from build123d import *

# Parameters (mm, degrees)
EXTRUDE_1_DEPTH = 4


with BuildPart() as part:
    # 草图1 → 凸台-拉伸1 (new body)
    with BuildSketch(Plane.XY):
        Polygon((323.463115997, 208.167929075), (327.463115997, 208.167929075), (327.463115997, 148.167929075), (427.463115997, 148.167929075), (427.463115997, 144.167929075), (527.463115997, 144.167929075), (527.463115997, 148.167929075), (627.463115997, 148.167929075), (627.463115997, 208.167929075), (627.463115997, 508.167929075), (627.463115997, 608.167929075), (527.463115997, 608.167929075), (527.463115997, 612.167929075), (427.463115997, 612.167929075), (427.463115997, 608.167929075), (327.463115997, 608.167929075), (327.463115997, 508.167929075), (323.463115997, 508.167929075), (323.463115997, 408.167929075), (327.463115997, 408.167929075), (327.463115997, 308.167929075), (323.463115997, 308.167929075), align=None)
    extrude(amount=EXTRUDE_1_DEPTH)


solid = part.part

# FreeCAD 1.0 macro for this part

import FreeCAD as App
import Part
import Sketcher
from FreeCAD import Vector
Q = App.Units.Quantity


def add_polygon(sketch, points):
    """Adds a closed chain of lines whose ends are joined by coincident constraints."""
    first, n = sketch.GeometryCount, len(points)
    for a, b in zip(points, points[1:] + points[:1]):
        sketch.addGeometry(Part.LineSegment(App.Vector(*a, 0), App.Vector(*b, 0)), False)
    for i in range(n):
        sketch.addConstraint(Sketcher.Constraint("Coincident", first + i, 2, first + (i + 1) % n, 1))

doc = App.newDocument("Part")
body = doc.addObject("PartDesign::Body", "Body")

# Sketch on XY plane
sketch1 = body.newObject("Sketcher::SketchObject", "Sketch")
sketch1.AttachmentSupport = (doc.getObject("XY_Plane"), [""])
sketch1.MapMode = "FlatFace"
add_polygon(sketch1, [(323.463116, 208.167929), (327.463116, 208.167929), (327.463116, 148.167929), (427.463116, 148.167929), (427.463116, 144.167929), (527.463116, 144.167929), (527.463116, 148.167929), (627.463116, 148.167929), (627.463116, 608.167929), (527.463116, 608.167929), (527.463116, 612.167929), (427.463116, 612.167929), (427.463116, 608.167929), (327.463116, 608.167929), (327.463116, 508.167929), (323.463116, 508.167929), (323.463116, 408.167929), (327.463116, 408.167929), (327.463116, 308.167929), (323.463116, 308.167929)])  # lines 0-19
sketch1.addConstraint([
    Sketcher.Constraint("Horizontal", 0),
    Sketcher.Constraint("Vertical", 1),
    Sketcher.Constraint("Horizontal", 2),
    Sketcher.Constraint("Vertical", 3),
    Sketcher.Constraint("Horizontal", 4),
    Sketcher.Constraint("Vertical", 5),
    Sketcher.Constraint("Horizontal", 6),
    Sketcher.Constraint("Vertical", 7),
    Sketcher.Constraint("Horizontal", 8),
    Sketcher.Constraint("Vertical", 9),
    Sketcher.Constraint("Horizontal", 10),
    Sketcher.Constraint("Vertical", 11),
    Sketcher.Constraint("Horizontal", 12),
    Sketcher.Constraint("Vertical", 13),
    Sketcher.Constraint("Horizontal", 14),
    Sketcher.Constraint("Vertical", 15),
    Sketcher.Constraint("Horizontal", 16),
    Sketcher.Constraint("Vertical", 17),
    Sketcher.Constraint("Horizontal", 18),
    Sketcher.Constraint("Vertical", 19),
    Sketcher.Constraint("Horizontal", 2, 2, 5, 2),
    Sketcher.Constraint("Horizontal", 8, 2, 11, 2),
    Sketcher.Constraint("Vertical", 5, 2, 8, 2),
    Sketcher.Constraint("Vertical", 3, 2, 10, 2),
    Sketcher.Constraint("Vertical", 1, 2, 12, 2),
    Sketcher.Constraint("Vertical", 13, 2, 16, 2),
    Sketcher.Constraint("Vertical", 15, 2, 18, 2),
    Sketcher.Constraint("Equal", 2, 4),
    Sketcher.Constraint("Equal", 4, 6),
    Sketcher.Constraint("Equal", 18, 3),
    Sketcher.Constraint("Equal", 5, 9),
    Sketcher.Constraint("Equal", 12, 13),
    Sketcher.Constraint("Equal", 13, 15),
    Sketcher.Constraint("Equal", 15, 17),
    Sketcher.Constraint("Equal", 17, 19),
    Sketcher.Constraint("DistanceX", 0, 1, 0, 2, Q("4 mm")),
    Sketcher.Constraint("DistanceX", 2, 1, 2, 2, Q("100 mm")),
    Sketcher.Constraint("DistanceY", 1, 2, 1, 1, Q("60 mm")),
    Sketcher.Constraint("DistanceY", -1, 1, 0, 2, Q("208.167929 mm")),
    Sketcher.Constraint("DistanceX", -1, 1, 0, 2, Q("327.463116 mm")),
])
pad1 = body.newObject("PartDesign::Pad", "Pad")
pad1.Profile = sketch1
pad1.Length = 4

doc.recompute()
